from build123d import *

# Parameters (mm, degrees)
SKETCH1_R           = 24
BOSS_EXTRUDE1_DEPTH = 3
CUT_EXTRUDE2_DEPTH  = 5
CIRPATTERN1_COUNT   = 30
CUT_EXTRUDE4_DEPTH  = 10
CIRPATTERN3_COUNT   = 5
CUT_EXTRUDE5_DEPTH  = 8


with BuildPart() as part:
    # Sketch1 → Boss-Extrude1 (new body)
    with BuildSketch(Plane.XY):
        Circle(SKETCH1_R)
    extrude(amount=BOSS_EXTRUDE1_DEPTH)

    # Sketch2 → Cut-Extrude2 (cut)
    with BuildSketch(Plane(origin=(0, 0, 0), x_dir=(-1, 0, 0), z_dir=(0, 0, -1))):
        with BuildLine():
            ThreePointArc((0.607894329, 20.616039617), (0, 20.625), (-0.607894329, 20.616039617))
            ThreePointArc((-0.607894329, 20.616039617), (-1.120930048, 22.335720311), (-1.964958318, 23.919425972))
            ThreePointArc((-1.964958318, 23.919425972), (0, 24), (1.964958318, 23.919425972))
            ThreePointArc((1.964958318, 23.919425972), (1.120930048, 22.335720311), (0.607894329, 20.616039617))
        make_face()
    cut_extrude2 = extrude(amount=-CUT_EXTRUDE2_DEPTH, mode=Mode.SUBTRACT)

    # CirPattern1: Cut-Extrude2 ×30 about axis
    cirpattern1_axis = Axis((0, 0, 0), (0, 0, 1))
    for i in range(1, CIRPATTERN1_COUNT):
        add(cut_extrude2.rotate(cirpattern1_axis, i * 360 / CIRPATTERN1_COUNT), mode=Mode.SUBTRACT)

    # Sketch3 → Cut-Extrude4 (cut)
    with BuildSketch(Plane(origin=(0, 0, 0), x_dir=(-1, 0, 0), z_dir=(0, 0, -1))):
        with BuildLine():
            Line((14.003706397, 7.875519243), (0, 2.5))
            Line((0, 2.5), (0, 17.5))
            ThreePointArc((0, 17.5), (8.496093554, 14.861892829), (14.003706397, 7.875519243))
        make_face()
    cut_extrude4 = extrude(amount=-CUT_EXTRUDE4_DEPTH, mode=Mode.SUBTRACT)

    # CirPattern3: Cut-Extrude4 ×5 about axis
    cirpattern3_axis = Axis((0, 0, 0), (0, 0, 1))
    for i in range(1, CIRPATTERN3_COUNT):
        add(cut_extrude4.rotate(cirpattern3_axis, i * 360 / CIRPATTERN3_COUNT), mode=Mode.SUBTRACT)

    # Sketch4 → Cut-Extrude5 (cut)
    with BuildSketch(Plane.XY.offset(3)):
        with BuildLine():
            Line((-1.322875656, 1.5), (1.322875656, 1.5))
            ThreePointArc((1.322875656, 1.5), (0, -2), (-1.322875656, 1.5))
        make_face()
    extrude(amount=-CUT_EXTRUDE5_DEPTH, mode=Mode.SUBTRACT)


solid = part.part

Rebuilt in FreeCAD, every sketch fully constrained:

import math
import FreeCAD as App
import Part
import Sketcher

V = App.Vector
Q = App.Units.Quantity

doc = App.newDocument("Part")
params = doc.addObject("Spreadsheet::Sheet", "Params")
for row, (alias, value) in enumerate([
    ("sketch1_diameter", "48 mm"),
    ("pad1_length", "3 mm"),
    ("sketch2_radius", "9 mm"),
    ("sketch2_radius2", "24 mm"),
    ("pocket1_length", "5 mm"),
    ("sketch3_radius", "15 mm"),
    ("pocket2_length", "10 mm"),
    ("sketch4_radius", "2 mm"),
    ("pocket3_length", "8 mm"),
], start=1):
    params.set(f"A{row}", alias)
    params.set(f"B{row}", "=" + value)
    params.setAlias(f"B{row}", alias)

body = doc.addObject("PartDesign::Body", "Body")

sketch1 = body.newObject("Sketcher::SketchObject", "Sketch")
sketch1.AttachmentSupport = (doc.getObject("XY_Plane"), [""])
sketch1.MapMode = "FlatFace"
sketch1.addGeometry(Part.Circle(V(0, 0, 0), V(0, 0, 1), 24), False)
sketch1.addConstraint([
    Sketcher.Constraint("Coincident", 0, 3, -1, 1),
    Sketcher.Constraint("Diameter", 0, Q("48 mm")),
])
sketch1.setExpression("Constraints[1]", "Params.sketch1_diameter")
pad1 = body.newObject("PartDesign::Pad", "Pad")
pad1.Profile = sketch1
pad1.setExpression("Length", "Params.pad1_length")

sketch2 = body.newObject("Sketcher::SketchObject", "Sketch001")
sketch2.AttachmentSupport = (doc.getObject("XY_Plane"), [""])
sketch2.MapMode = "FlatFace"
sketch2.addGeometry([
    Part.ArcOfCircle(Part.Circle(V(0, 0, 0), V(0, 0, 1), 20.6), math.radians(88.31), math.radians(91.69)),
    Part.ArcOfCircle(Part.Circle(V(-9.4, 18.9, 0), V(0, 0, 1), 9), math.radians(11), math.radians(34)),
    Part.ArcOfCircle(Part.Circle(V(0, 0, 0), V(0, 0, 1), 24), math.radians(85.3), math.radians(94.7)),
    Part.ArcOfCircle(Part.Circle(V(9.4, 18.9, 0), V(0, 0, 1), 9), math.radians(146), math.radians(169)),
], False)
sketch2.addConstraint([
    Sketcher.Constraint("Coincident", 0, 2, 1, 1),
    Sketcher.Constraint("Coincident", 1, 2, 2, 2),
    Sketcher.Constraint("Coincident", 2, 1, 3, 1),
    Sketcher.Constraint("Coincident", 3, 2, 0, 1),
    Sketcher.Constraint("Coincident", 0, 3, -1, 1),
    Sketcher.Constraint("Coincident", 2, 3, -1, 1),
    Sketcher.Constraint("Equal", 1, 3),
    Sketcher.Constraint("Symmetric", 1, 3, 3, 3, -2),
    Sketcher.Constraint("Radius", 1, Q("9 mm")),
    Sketcher.Constraint("Radius", 2, Q("24 mm")),
    Sketcher.Constraint("Radius", 0, Q("20.625 mm")),
    Sketcher.Constraint("DistanceX", 1, 3, -1, 1, Q("9.445828 mm")),
    Sketcher.Constraint("DistanceY", -1, 1, 1, 3, Q("18.915769 mm")),
])
sketch2.setExpression("Constraints[8]", "Params.sketch2_radius")
sketch2.setExpression("Constraints[9]", "Params.sketch2_radius2")
pocket1 = body.newObject("PartDesign::Pocket", "Pocket")
pocket1.Profile = sketch2
pocket1.setExpression("Length", "Params.pocket1_length")
pocket1.Reversed = True
doc.recompute()

polarpattern = body.newObject("PartDesign::PolarPattern", "PolarPattern")
polarpattern.Originals = [pocket1]
polarpattern.Axis = (doc.getObject("Z_Axis"), [""])
polarpattern.Angle = 360
polarpattern.Occurrences = 30
body.Tip = polarpattern

sketch3 = body.newObject("Sketcher::SketchObject", "Sketch002")
sketch3.AttachmentSupport = (doc.getObject("XY_Plane"), [""])
sketch3.MapMode = "FlatFace"
sketch3.addGeometry([
    Part.LineSegment(V(0, 2, 0), V(-14, 8, 0)),
    Part.ArcOfCircle(Part.Circle(V(0, 2, 0), V(0, 0, 1), 15), math.radians(90), math.radians(159)),
    Part.LineSegment(V(0, 18, 0), V(0, 2, 0)),
], False)
sketch3.addConstraint([
    Sketcher.Constraint("Coincident", 0, 2, 1, 2),
    Sketcher.Constraint("Coincident", 1, 1, 2, 1),
    Sketcher.Constraint("Coincident", 2, 2, 0, 1),
    Sketcher.Constraint("Vertical", 2),
    Sketcher.Constraint("Coincident", 2, 2, 1, 3),
    Sketcher.Constraint("PointOnObject", 1, 3, -2),
    Sketcher.Constraint("Radius", 1, Q("15 mm")),
    Sketcher.Constraint("Angle", 0, Q("159 deg")),
    Sketcher.Constraint("DistanceY", -1, 1, 1, 3, Q("2.5 mm")),
])
sketch3.setExpression("Constraints[6]", "Params.sketch3_radius")
pocket2 = body.newObject("PartDesign::Pocket", "Pocket001")
pocket2.Profile = sketch3
pocket2.setExpression("Length", "Params.pocket2_length")
pocket2.Reversed = True
doc.recompute()

polarpattern2 = body.newObject("PartDesign::PolarPattern", "PolarPattern001")
polarpattern2.Originals = [pocket2]
polarpattern2.Axis = (doc.getObject("Z_Axis"), [""])
polarpattern2.Angle = 360
polarpattern2.Occurrences = 5
body.Tip = polarpattern2

sketch4 = body.newObject("Sketcher::SketchObject", "Sketch003")
sketch4.AttachmentSupport = (doc.getObject("XY_Plane"), [""])
sketch4.MapMode = "FlatFace"
sketch4.AttachmentOffset = App.Placement(V(0, 0, 3), App.Rotation())
sketch4.addGeometry([
    Part.LineSegment(V(1.3, 1.5, 0), V(-1.3, 1.5, 0)),
    Part.ArcOfCircle(Part.Circle(V(0, 0, 0), V(0, 0, 1), 2), math.radians(131), math.radians(409)),
], False)
sketch4.addConstraint([
    Sketcher.Constraint("Coincident", 0, 1, 1, 2),
    Sketcher.Constraint("Coincident", 1, 1, 0, 2),
    Sketcher.Constraint("Horizontal", 0),
    Sketcher.Constraint("Coincident", 1, 3, -1, 1),
    Sketcher.Constraint("Radius", 1, Q("2 mm")),
    Sketcher.Constraint("DistanceY", -1, 1, 0, 1, Q("1.5 mm")),
])
sketch4.setExpression("Constraints[4]", "Params.sketch4_radius")
pocket3 = body.newObject("PartDesign::Pocket", "Pocket002")
pocket3.Profile = sketch4
pocket3.setExpression("Length", "Params.pocket3_length")

doc.recompute()
